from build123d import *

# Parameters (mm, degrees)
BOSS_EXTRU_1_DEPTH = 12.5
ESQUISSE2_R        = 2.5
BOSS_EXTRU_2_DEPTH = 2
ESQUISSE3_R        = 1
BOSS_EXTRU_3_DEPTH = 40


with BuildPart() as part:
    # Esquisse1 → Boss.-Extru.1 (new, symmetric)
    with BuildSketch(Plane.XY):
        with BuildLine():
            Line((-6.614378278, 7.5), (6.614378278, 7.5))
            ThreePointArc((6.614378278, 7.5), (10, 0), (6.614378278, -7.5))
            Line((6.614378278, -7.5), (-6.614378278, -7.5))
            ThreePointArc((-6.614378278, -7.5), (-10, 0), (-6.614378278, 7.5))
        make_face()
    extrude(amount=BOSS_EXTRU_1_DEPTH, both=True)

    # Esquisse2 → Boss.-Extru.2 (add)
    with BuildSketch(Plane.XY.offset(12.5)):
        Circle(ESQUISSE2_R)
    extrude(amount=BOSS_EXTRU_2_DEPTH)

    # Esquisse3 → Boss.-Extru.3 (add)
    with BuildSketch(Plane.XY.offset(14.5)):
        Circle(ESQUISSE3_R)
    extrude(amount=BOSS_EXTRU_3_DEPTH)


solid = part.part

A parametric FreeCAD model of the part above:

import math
import FreeCAD as App
import Part
import Sketcher

V = App.Vector

doc = App.newDocument("Part")
body = doc.addObject("PartDesign::Body", "Body")

sketch1 = body.newObject("Sketcher::SketchObject", "Sketch")
sketch1.AttachmentSupport = (doc.getObject("XY_Plane"), [""])
sketch1.MapMode = "FlatFace"
sketch1.addGeometry([
    Part.LineSegment(V(7, 8, 0), V(-7, 8, 0)),
    Part.ArcOfCircle(Part.Circle(V(0, 0, 0), V(0, 0, 1), 10), math.radians(131), math.radians(229)),
    Part.LineSegment(V(-7, -8, 0), V(7, -8, 0)),
    Part.ArcOfCircle(Part.Circle(V(0, 0, 0), V(0, 0, 1), 10), math.radians(-49), math.radians(49)),
], False)
sketch1.addConstraint([
    Sketcher.Constraint("Coincident", 0, 2, 1, 1),
    Sketcher.Constraint("Coincident", 1, 2, 2, 1),
    Sketcher.Constraint("Coincident", 2, 2, 3, 1),
    Sketcher.Constraint("Coincident", 3, 2, 0, 1),
    Sketcher.Constraint("Horizontal", 0),
    Sketcher.Constraint("Horizontal", 2),
    Sketcher.Constraint("Coincident", 1, 3, -1, 1),
    Sketcher.Constraint("Coincident", 3, 3, -1, 1),
    Sketcher.Constraint("Equal", 1, 3),
    Sketcher.Constraint("Vertical", 0, 2, 1, 2),
    Sketcher.Constraint("Radius", 1, 10.0),
    Sketcher.Constraint("DistanceY", 1, 2, 0, 2, 15.0),
])
pad1 = body.newObject("PartDesign::Pad", "Pad")
pad1.Profile = sketch1
pad1.Length = 25
pad1.Midplane = True

sketch2 = body.newObject("Sketcher::SketchObject", "Sketch001")
sketch2.AttachmentSupport = (doc.getObject("XY_Plane"), [""])
sketch2.MapMode = "FlatFace"
sketch2.AttachmentOffset = App.Placement(V(0, 0, 12.5), App.Rotation())
sketch2.addGeometry(Part.Circle(V(0, 0, 0), V(0, 0, 1), 2.5), False)
sketch2.addConstraint([
    Sketcher.Constraint("Coincident", 0, 3, -1, 1),
    Sketcher.Constraint("Diameter", 0, 5.0),
])
pad2 = body.newObject("PartDesign::Pad", "Pad001")
pad2.Profile = sketch2
pad2.Length = 2

sketch3 = body.newObject("Sketcher::SketchObject", "Sketch002")
sketch3.AttachmentSupport = (doc.getObject("XY_Plane"), [""])
sketch3.MapMode = "FlatFace"
sketch3.AttachmentOffset = App.Placement(V(0, 0, 14.5), App.Rotation())
sketch3.addGeometry(Part.Circle(V(0, 0, 0), V(0, 0, 1), 1), False)
sketch3.addConstraint([
    Sketcher.Constraint("Coincident", 0, 3, -1, 1),
    Sketcher.Constraint("Diameter", 0, 2.0),
])
pad3 = body.newObject("PartDesign::Pad", "Pad002")
pad3.Profile = sketch3
pad3.Length = 40

doc.recompute()
